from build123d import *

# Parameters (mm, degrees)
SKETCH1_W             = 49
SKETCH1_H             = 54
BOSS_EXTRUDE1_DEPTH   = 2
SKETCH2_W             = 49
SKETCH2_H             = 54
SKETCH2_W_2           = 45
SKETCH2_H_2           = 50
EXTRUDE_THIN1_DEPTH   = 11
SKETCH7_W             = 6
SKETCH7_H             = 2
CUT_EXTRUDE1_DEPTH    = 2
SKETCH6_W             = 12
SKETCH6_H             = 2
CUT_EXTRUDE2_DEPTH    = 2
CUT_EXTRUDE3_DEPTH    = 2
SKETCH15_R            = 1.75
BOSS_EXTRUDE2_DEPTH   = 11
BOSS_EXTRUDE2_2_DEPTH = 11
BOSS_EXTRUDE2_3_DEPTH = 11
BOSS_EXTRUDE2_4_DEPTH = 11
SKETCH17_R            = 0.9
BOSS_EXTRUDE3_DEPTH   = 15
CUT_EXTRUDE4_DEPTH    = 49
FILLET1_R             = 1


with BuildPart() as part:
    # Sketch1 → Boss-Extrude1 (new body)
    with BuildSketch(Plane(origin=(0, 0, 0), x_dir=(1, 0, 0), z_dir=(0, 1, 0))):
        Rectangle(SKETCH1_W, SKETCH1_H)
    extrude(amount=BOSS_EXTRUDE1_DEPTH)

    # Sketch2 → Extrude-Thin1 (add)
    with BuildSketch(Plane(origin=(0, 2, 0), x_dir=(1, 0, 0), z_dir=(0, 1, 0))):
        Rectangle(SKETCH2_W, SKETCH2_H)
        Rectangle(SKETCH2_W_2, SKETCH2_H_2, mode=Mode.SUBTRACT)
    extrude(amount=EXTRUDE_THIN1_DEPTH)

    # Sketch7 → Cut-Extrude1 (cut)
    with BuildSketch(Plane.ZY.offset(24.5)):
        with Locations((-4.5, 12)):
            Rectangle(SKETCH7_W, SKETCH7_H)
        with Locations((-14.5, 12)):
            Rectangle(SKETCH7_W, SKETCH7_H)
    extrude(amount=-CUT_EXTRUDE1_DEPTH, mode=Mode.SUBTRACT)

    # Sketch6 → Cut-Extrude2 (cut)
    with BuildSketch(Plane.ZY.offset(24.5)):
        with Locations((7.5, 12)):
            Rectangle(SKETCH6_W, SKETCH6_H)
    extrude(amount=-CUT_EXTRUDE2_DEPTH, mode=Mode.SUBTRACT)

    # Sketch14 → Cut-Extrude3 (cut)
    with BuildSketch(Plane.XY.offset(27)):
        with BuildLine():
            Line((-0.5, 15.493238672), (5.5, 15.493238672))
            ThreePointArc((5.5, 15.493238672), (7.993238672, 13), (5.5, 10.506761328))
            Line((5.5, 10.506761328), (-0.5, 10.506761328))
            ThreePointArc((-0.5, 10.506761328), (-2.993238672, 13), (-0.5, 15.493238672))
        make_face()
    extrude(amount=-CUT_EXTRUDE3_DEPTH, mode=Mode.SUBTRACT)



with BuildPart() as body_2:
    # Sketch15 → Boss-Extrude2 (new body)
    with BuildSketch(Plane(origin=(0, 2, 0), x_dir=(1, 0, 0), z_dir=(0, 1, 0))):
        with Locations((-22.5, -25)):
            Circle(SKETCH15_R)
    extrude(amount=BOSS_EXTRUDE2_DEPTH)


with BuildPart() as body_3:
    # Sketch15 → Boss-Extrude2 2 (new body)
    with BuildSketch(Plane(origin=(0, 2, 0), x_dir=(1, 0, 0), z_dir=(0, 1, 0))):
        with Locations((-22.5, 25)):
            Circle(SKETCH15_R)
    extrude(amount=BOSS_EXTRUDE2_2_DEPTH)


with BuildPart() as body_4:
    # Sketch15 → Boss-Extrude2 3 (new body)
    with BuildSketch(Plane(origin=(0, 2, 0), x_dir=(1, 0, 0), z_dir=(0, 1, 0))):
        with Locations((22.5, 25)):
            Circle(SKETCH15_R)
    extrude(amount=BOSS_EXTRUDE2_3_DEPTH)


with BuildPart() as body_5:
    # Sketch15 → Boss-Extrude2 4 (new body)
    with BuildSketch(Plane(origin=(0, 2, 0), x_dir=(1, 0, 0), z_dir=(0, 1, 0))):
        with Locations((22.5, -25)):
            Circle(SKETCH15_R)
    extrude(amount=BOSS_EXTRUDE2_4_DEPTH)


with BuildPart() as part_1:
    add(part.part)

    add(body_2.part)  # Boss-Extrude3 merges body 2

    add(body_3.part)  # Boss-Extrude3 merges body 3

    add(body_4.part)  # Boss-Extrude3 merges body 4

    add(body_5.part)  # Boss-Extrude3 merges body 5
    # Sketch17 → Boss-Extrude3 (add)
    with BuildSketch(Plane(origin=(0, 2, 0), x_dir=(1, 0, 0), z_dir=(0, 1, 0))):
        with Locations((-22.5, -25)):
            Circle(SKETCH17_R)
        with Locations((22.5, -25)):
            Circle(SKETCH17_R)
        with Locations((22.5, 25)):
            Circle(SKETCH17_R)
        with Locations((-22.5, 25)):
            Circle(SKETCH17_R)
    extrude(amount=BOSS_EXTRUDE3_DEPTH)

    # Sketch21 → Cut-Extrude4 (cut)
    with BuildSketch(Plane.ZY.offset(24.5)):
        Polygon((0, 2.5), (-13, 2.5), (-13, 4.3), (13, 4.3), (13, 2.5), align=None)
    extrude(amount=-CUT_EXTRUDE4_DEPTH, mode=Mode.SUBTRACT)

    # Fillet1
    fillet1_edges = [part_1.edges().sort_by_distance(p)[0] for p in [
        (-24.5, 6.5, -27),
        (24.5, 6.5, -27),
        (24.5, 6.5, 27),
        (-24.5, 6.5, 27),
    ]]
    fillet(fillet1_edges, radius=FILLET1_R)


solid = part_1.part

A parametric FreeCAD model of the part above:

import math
import FreeCAD as App
import Part
import Sketcher


def edges_at(feature, points):
    """Names of the edges that pass closest to the given points."""
    edges = feature.Shape.Edges
    near = lambda p: min(range(len(edges)), key=lambda i: edges[i].distToShape(Part.Vertex(*p))[0])
    return sorted({f"Edge{near(p) + 1}" for p in points})

doc = App.newDocument("Part")
params = doc.addObject("Spreadsheet::Sheet", "Params")
for row, (alias, value) in enumerate([
    ("sketch1_width", "49 mm"),
    ("sketch1_height", "54 mm"),
    ("pad1_length", "2 mm"),
    ("sketch2_width", "49 mm"),
    ("sketch2_width2", "45 mm"),
    ("sketch2_height", "54 mm"),
    ("sketch2_height2", "50 mm"),
    ("pad2_length", "11 mm"),
    ("sketch3_width", "2 mm"),
    ("sketch3_height", "6 mm"),
    ("pocket1_length", "2 mm"),
    ("sketch4_width", "2 mm"),
    ("sketch4_height", "12 mm"),
    ("pocket2_length", "2 mm"),
    ("sketch5_width", "6 mm"),
    ("pocket3_length", "2 mm"),
    ("sketch6_diameter", "3.5 mm"),
    ("pad3_length", "11 mm"),
    ("sketch7_diameter", "3.5 mm"),
    ("pad4_length", "11 mm"),
    ("sketch8_diameter", "3.5 mm"),
    ("pad5_length", "11 mm"),
    ("sketch9_diameter", "3.5 mm"),
    ("pad6_length", "11 mm"),
    ("sketch10_diameter", "1.8 mm"),
    ("pad7_length", "15 mm"),
    ("sketch11_height", "26 mm"),
    ("sketch11_width", "1.8 mm"),
    ("pocket4_length", "49 mm"),
    ("fillet_radius", "1 mm"),
], start=1):
    params.set(f"A{row}", alias)
    params.set(f"B{row}", "=" + value)
    params.setAlias(f"B{row}", alias)

body = doc.addObject("PartDesign::Body", "Body")

# Sketch on XZ plane
sketch1 = body.newObject("Sketcher::SketchObject", "Sketch")
sketch1.AttachmentSupport = (doc.getObject("XZ_Plane"), [""])
sketch1.MapMode = "FlatFace"
sketch1.addGeometry(Part.LineSegment(App.Vector(-24, -27, 0), App.Vector(-24, 27, 0)), False)
sketch1.addGeometry(Part.LineSegment(App.Vector(-24, 27, 0), App.Vector(24, 27, 0)), False)
sketch1.addGeometry(Part.LineSegment(App.Vector(24, 27, 0), App.Vector(24, -27, 0)), False)
sketch1.addGeometry(Part.LineSegment(App.Vector(24, -27, 0), App.Vector(-24, -27, 0)), False)
sketch1.addConstraint(Sketcher.Constraint("Coincident", 0, 2, 1, 1))
sketch1.addConstraint(Sketcher.Constraint("Coincident", 1, 2, 2, 1))
sketch1.addConstraint(Sketcher.Constraint("Coincident", 2, 2, 3, 1))
sketch1.addConstraint(Sketcher.Constraint("Coincident", 3, 2, 0, 1))
sketch1.addConstraint(Sketcher.Constraint("Vertical", 0))
sketch1.addConstraint(Sketcher.Constraint("Horizontal", 1))
sketch1.addConstraint(Sketcher.Constraint("Vertical", 2))
sketch1.addConstraint(Sketcher.Constraint("Horizontal", 3))
sketch1.addConstraint(Sketcher.Constraint("Symmetric", 0, 2, 2, 2, -1, 1))
sketch1.addConstraint(Sketcher.Constraint("DistanceX", 1, 1, 1, 2, 49.0))
sketch1.addConstraint(Sketcher.Constraint("DistanceY", 0, 1, 0, 2, 54.0))
sketch1.setExpression("Constraints[9]", "Params.sketch1_width")
sketch1.setExpression("Constraints[10]", "Params.sketch1_height")
pad1 = body.newObject("PartDesign::Pad", "Pad")
pad1.Profile = sketch1
pad1.setExpression("Length", "Params.pad1_length")
pad1.Reversed = True

# Sketch on XZ plane
sketch2 = body.newObject("Sketcher::SketchObject", "Sketch001")
sketch2.AttachmentSupport = (doc.getObject("XZ_Plane"), [""])
sketch2.MapMode = "FlatFace"
sketch2.AttachmentOffset = App.Placement(App.Vector(0, 0, -2), App.Rotation())
sketch2.addGeometry(Part.LineSegment(App.Vector(-24, -27, 0), App.Vector(-24, 27, 0)), False)
sketch2.addGeometry(Part.LineSegment(App.Vector(-24, 27, 0), App.Vector(24, 27, 0)), False)
sketch2.addGeometry(Part.LineSegment(App.Vector(24, 27, 0), App.Vector(24, -27, 0)), False)
sketch2.addGeometry(Part.LineSegment(App.Vector(24, -27, 0), App.Vector(-24, -27, 0)), False)
sketch2.addGeometry(Part.LineSegment(App.Vector(22, 25, 0), App.Vector(-22, 25, 0)), False)
sketch2.addGeometry(Part.LineSegment(App.Vector(-22, 25, 0), App.Vector(-22, -25, 0)), False)
sketch2.addGeometry(Part.LineSegment(App.Vector(-22, -25, 0), App.Vector(22, -25, 0)), False)
sketch2.addGeometry(Part.LineSegment(App.Vector(22, -25, 0), App.Vector(22, 25, 0)), False)
sketch2.addConstraint(Sketcher.Constraint("Coincident", 0, 2, 1, 1))
sketch2.addConstraint(Sketcher.Constraint("Coincident", 1, 2, 2, 1))
sketch2.addConstraint(Sketcher.Constraint("Coincident", 2, 2, 3, 1))
sketch2.addConstraint(Sketcher.Constraint("Coincident", 3, 2, 0, 1))
sketch2.addConstraint(Sketcher.Constraint("Coincident", 4, 2, 5, 1))
sketch2.addConstraint(Sketcher.Constraint("Coincident", 5, 2, 6, 1))
sketch2.addConstraint(Sketcher.Constraint("Coincident", 6, 2, 7, 1))
sketch2.addConstraint(Sketcher.Constraint("Coincident", 7, 2, 4, 1))
sketch2.addConstraint(Sketcher.Constraint("Vertical", 0))
sketch2.addConstraint(Sketcher.Constraint("Horizontal", 1))
sketch2.addConstraint(Sketcher.Constraint("Vertical", 2))
sketch2.addConstraint(Sketcher.Constraint("Horizontal", 3))
sketch2.addConstraint(Sketcher.Constraint("Horizontal", 4))
sketch2.addConstraint(Sketcher.Constraint("Vertical", 5))
sketch2.addConstraint(Sketcher.Constraint("Horizontal", 6))
sketch2.addConstraint(Sketcher.Constraint("Vertical", 7))
sketch2.addConstraint(Sketcher.Constraint("Symmetric", 0, 2, 2, 2, -1, 1))
sketch2.addConstraint(Sketcher.Constraint("Symmetric", 4, 2, 6, 2, -1, 1))
sketch2.addConstraint(Sketcher.Constraint("DistanceX", 1, 1, 1, 2, 49.0))
sketch2.addConstraint(Sketcher.Constraint("DistanceX", 4, 2, 4, 1, 45.0))
sketch2.addConstraint(Sketcher.Constraint("DistanceY", 0, 1, 0, 2, 54.0))
sketch2.addConstraint(Sketcher.Constraint("DistanceY", 5, 2, 5, 1, 50.0))
sketch2.setExpression("Constraints[18]", "Params.sketch2_width")
sketch2.setExpression("Constraints[19]", "Params.sketch2_width2")
sketch2.setExpression("Constraints[20]", "Params.sketch2_height")
sketch2.setExpression("Constraints[21]", "Params.sketch2_height2")
pad2 = body.newObject("PartDesign::Pad", "Pad001")
pad2.Profile = sketch2
pad2.setExpression("Length", "Params.pad2_length")
pad2.Reversed = True

# Sketch on YZ plane
sketch3 = body.newObject("Sketcher::SketchObject", "Sketch002")
sketch3.AttachmentSupport = (doc.getObject("YZ_Plane"), [""])
sketch3.MapMode = "FlatFace"
sketch3.AttachmentOffset = App.Placement(App.Vector(0, 0, -24.5), App.Rotation())
sketch3.addGeometry(Part.LineSegment(App.Vector(13, -7.5, 0), App.Vector(11, -7.5, 0)), False)
sketch3.addGeometry(Part.LineSegment(App.Vector(11, -7.5, 0), App.Vector(11, -1.5, 0)), False)
sketch3.addGeometry(Part.LineSegment(App.Vector(11, -1.5, 0), App.Vector(13, -1.5, 0)), False)
sketch3.addGeometry(Part.LineSegment(App.Vector(13, -1.5, 0), App.Vector(13, -7.5, 0)), False)
sketch3.addGeometry(Part.LineSegment(App.Vector(13, -17.5, 0), App.Vector(11, -17.5, 0)), False)
sketch3.addGeometry(Part.LineSegment(App.Vector(11, -17.5, 0), App.Vector(11, -11.5, 0)), False)
sketch3.addGeometry(Part.LineSegment(App.Vector(11, -11.5, 0), App.Vector(13, -11.5, 0)), False)
sketch3.addGeometry(Part.LineSegment(App.Vector(13, -11.5, 0), App.Vector(13, -17.5, 0)), False)
sketch3.addConstraint(Sketcher.Constraint("Coincident", 0, 2, 1, 1))
sketch3.addConstraint(Sketcher.Constraint("Coincident", 1, 2, 2, 1))
sketch3.addConstraint(Sketcher.Constraint("Coincident", 2, 2, 3, 1))
sketch3.addConstraint(Sketcher.Constraint("Coincident", 3, 2, 0, 1))
sketch3.addConstraint(Sketcher.Constraint("Coincident", 4, 2, 5, 1))
sketch3.addConstraint(Sketcher.Constraint("Coincident", 5, 2, 6, 1))
sketch3.addConstraint(Sketcher.Constraint("Coincident", 6, 2, 7, 1))
sketch3.addConstraint(Sketcher.Constraint("Coincident", 7, 2, 4, 1))
sketch3.addConstraint(Sketcher.Constraint("Horizontal", 0))
sketch3.addConstraint(Sketcher.Constraint("Vertical", 1))
sketch3.addConstraint(Sketcher.Constraint("Horizontal", 2))
sketch3.addConstraint(Sketcher.Constraint("Vertical", 3))
sketch3.addConstraint(Sketcher.Constraint("Horizontal", 4))
sketch3.addConstraint(Sketcher.Constraint("Vertical", 5))
sketch3.addConstraint(Sketcher.Constraint("Horizontal", 6))
sketch3.addConstraint(Sketcher.Constraint("Vertical", 7))
sketch3.addConstraint(Sketcher.Constraint("Vertical", 1, 2, 4, 2))
sketch3.addConstraint(Sketcher.Constraint("Vertical", 3, 2, 6, 2))
sketch3.addConstraint(Sketcher.Constraint("Equal", 3, 5))
sketch3.addConstraint(Sketcher.Constraint("DistanceX", 0, 2, 0, 1, 2.0))
sketch3.addConstraint(Sketcher.Constraint("DistanceY", 1, 1, 1, 2, 6.0))
sketch3.addConstraint(Sketcher.Constraint("DistanceX", -1, 1, 0, 2, 11.0))
sketch3.addConstraint(Sketcher.Constraint("DistanceY", 4, 2, 0, 2, 10.0))
sketch3.addConstraint(Sketcher.Constraint("DistanceY", 0, 2, -1, 1, 7.5))
sketch3.setExpression("Constraints[19]", "Params.sketch3_width")
sketch3.setExpression("Constraints[20]", "Params.sketch3_height")
pocket1 = body.newObject("PartDesign::Pocket", "Pocket")
pocket1.Profile = sketch3
pocket1.setExpression("Length", "Params.pocket1_length")
pocket1.Reversed = True

# Sketch on YZ plane
sketch4 = body.newObject("Sketcher::SketchObject", "Sketch003")
sketch4.AttachmentSupport = (doc.getObject("YZ_Plane"), [""])
sketch4.MapMode = "FlatFace"
sketch4.AttachmentOffset = App.Placement(App.Vector(0, 0, -24.5), App.Rotation())
sketch4.addGeometry(Part.LineSegment(App.Vector(13, 1.5, 0), App.Vector(11, 1.5, 0)), False)
sketch4.addGeometry(Part.LineSegment(App.Vector(11, 1.5, 0), App.Vector(11, 13.5, 0)), False)
sketch4.addGeometry(Part.LineSegment(App.Vector(11, 13.5, 0), App.Vector(13, 13.5, 0)), False)
sketch4.addGeometry(Part.LineSegment(App.Vector(13, 13.5, 0), App.Vector(13, 1.5, 0)), False)
sketch4.addConstraint(Sketcher.Constraint("Coincident", 0, 2, 1, 1))
sketch4.addConstraint(Sketcher.Constraint("Coincident", 1, 2, 2, 1))
sketch4.addConstraint(Sketcher.Constraint("Coincident", 2, 2, 3, 1))
sketch4.addConstraint(Sketcher.Constraint("Coincident", 3, 2, 0, 1))
sketch4.addConstraint(Sketcher.Constraint("Horizontal", 0))
sketch4.addConstraint(Sketcher.Constraint("Vertical", 1))
sketch4.addConstraint(Sketcher.Constraint("Horizontal", 2))
sketch4.addConstraint(Sketcher.Constraint("Vertical", 3))
sketch4.addConstraint(Sketcher.Constraint("DistanceX", 0, 2, 0, 1, 2.0))
sketch4.addConstraint(Sketcher.Constraint("DistanceY", 1, 1, 1, 2, 12.0))
sketch4.addConstraint(Sketcher.Constraint("DistanceX", -1, 1, 0, 2, 11.0))
sketch4.addConstraint(Sketcher.Constraint("DistanceY", -1, 1, 0, 2, 1.5))
sketch4.setExpression("Constraints[8]", "Params.sketch4_width")
sketch4.setExpression("Constraints[9]", "Params.sketch4_height")
pocket2 = body.newObject("PartDesign::Pocket", "Pocket001")
pocket2.Profile = sketch4
pocket2.setExpression("Length", "Params.pocket2_length")
pocket2.Reversed = True

# Sketch on XY plane
sketch5 = body.newObject("Sketcher::SketchObject", "Sketch004")
sketch5.AttachmentSupport = (doc.getObject("XY_Plane"), [""])
sketch5.MapMode = "FlatFace"
sketch5.AttachmentOffset = App.Placement(App.Vector(0, 0, 27), App.Rotation())
sketch5.addGeometry(Part.LineSegment(App.Vector(5.5, 15.5, 0), App.Vector(-0.5, 15.5, 0)), False)
sketch5.addGeometry(Part.ArcOfCircle(Part.Circle(App.Vector(-0.5, 13, 0), App.Vector(0, 0, 1), 2.5), math.radians(90), math.radians(270)), False)
sketch5.addGeometry(Part.LineSegment(App.Vector(-0.5, 10.5, 0), App.Vector(5.5, 10.5, 0)), False)
sketch5.addGeometry(Part.ArcOfCircle(Part.Circle(App.Vector(5.5, 13, 0), App.Vector(0, 0, 1), 2.5), math.radians(-90), math.radians(90)), False)
sketch5.addConstraint(Sketcher.Constraint("Tangent", 0, 2, 1, 1))
sketch5.addConstraint(Sketcher.Constraint("Tangent", 1, 2, 2, 1))
sketch5.addConstraint(Sketcher.Constraint("Tangent", 2, 2, 3, 1))
sketch5.addConstraint(Sketcher.Constraint("Tangent", 3, 2, 0, 1))
sketch5.addConstraint(Sketcher.Constraint("Horizontal", 0))
sketch5.addConstraint(Sketcher.Constraint("Horizontal", 2))
sketch5.addConstraint(Sketcher.Constraint("DistanceX", 0, 2, 0, 1, 6.0))
sketch5.addConstraint(Sketcher.Constraint("DistanceY", -1, 1, 1, 3, 13.0))
sketch5.addConstraint(Sketcher.Constraint("DistanceX", 1, 3, -1, 1, 0.5))
sketch5.addConstraint(Sketcher.Constraint("Radius", 1, 2.493239))
sketch5.setExpression("Constraints[6]", "Params.sketch5_width")
pocket3 = body.newObject("PartDesign::Pocket", "Pocket002")
pocket3.Profile = sketch5
pocket3.setExpression("Length", "Params.pocket3_length")
body2 = doc.addObject("PartDesign::Body", "Body001")

# Sketch on XZ plane
sketch6 = body2.newObject("Sketcher::SketchObject", "Sketch005")
sketch6.AttachmentSupport = (doc.getObject("XZ_Plane001"), [""])
sketch6.MapMode = "FlatFace"
sketch6.AttachmentOffset = App.Placement(App.Vector(0, 0, -2), App.Rotation())
sketch6.addGeometry(Part.Circle(App.Vector(-22.5, 25, 0), App.Vector(0, 0, 1), 1.8), False)
sketch6.addConstraint(Sketcher.Constraint("Diameter", 0, 3.5))
sketch6.addConstraint(Sketcher.Constraint("DistanceY", -1, 1, 0, 3, 25.0))
sketch6.addConstraint(Sketcher.Constraint("DistanceX", 0, 3, -1, 1, 22.5))
sketch6.setExpression("Constraints[0]", "Params.sketch6_diameter")
pad3 = body2.newObject("PartDesign::Pad", "Pad002")
pad3.Profile = sketch6
pad3.setExpression("Length", "Params.pad3_length")
pad3.Reversed = True
body3 = doc.addObject("PartDesign::Body", "Body002")

# Sketch on XZ plane
sketch7 = body3.newObject("Sketcher::SketchObject", "Sketch006")
sketch7.AttachmentSupport = (doc.getObject("XZ_Plane002"), [""])
sketch7.MapMode = "FlatFace"
sketch7.AttachmentOffset = App.Placement(App.Vector(0, 0, -2), App.Rotation())
sketch7.addGeometry(Part.Circle(App.Vector(-22.5, -25, 0), App.Vector(0, 0, 1), 1.8), False)
sketch7.addConstraint(Sketcher.Constraint("Diameter", 0, 3.5))
sketch7.addConstraint(Sketcher.Constraint("DistanceY", 0, 3, -1, 1, 25.0))
sketch7.addConstraint(Sketcher.Constraint("DistanceX", 0, 3, -1, 1, 22.5))
sketch7.setExpression("Constraints[0]", "Params.sketch7_diameter")
pad4 = body3.newObject("PartDesign::Pad", "Pad003")
pad4.Profile = sketch7
pad4.setExpression("Length", "Params.pad4_length")
pad4.Reversed = True
body4 = doc.addObject("PartDesign::Body", "Body003")

# Sketch on XZ plane
sketch8 = body4.newObject("Sketcher::SketchObject", "Sketch007")
sketch8.AttachmentSupport = (doc.getObject("XZ_Plane003"), [""])
sketch8.MapMode = "FlatFace"
sketch8.AttachmentOffset = App.Placement(App.Vector(0, 0, -2), App.Rotation())
sketch8.addGeometry(Part.Circle(App.Vector(22.5, -25, 0), App.Vector(0, 0, 1), 1.8), False)
sketch8.addConstraint(Sketcher.Constraint("Diameter", 0, 3.5))
sketch8.addConstraint(Sketcher.Constraint("DistanceY", 0, 3, -1, 1, 25.0))
sketch8.addConstraint(Sketcher.Constraint("DistanceX", -1, 1, 0, 3, 22.5))
sketch8.setExpression("Constraints[0]", "Params.sketch8_diameter")
pad5 = body4.newObject("PartDesign::Pad", "Pad004")
pad5.Profile = sketch8
pad5.setExpression("Length", "Params.pad5_length")
pad5.Reversed = True
body5 = doc.addObject("PartDesign::Body", "Body004")

# Sketch on XZ plane
sketch9 = body5.newObject("Sketcher::SketchObject", "Sketch008")
sketch9.AttachmentSupport = (doc.getObject("XZ_Plane004"), [""])
sketch9.MapMode = "FlatFace"
sketch9.AttachmentOffset = App.Placement(App.Vector(0, 0, -2), App.Rotation())
sketch9.addGeometry(Part.Circle(App.Vector(22.5, 25, 0), App.Vector(0, 0, 1), 1.8), False)
sketch9.addConstraint(Sketcher.Constraint("Diameter", 0, 3.5))
sketch9.addConstraint(Sketcher.Constraint("DistanceY", -1, 1, 0, 3, 25.0))
sketch9.addConstraint(Sketcher.Constraint("DistanceX", -1, 1, 0, 3, 22.5))
sketch9.setExpression("Constraints[0]", "Params.sketch9_diameter")
pad6 = body5.newObject("PartDesign::Pad", "Pad005")
pad6.Profile = sketch9
pad6.setExpression("Length", "Params.pad6_length")
pad6.Reversed = True
doc.recompute()

boolean = body.newObject("PartDesign::Boolean", "Boolean")
boolean.Type = "Fuse"
boolean.addObjects([body2])
doc.recompute()

boolean2 = body.newObject("PartDesign::Boolean", "Boolean001")
boolean2.Type = "Fuse"
boolean2.addObjects([body3])
doc.recompute()

boolean3 = body.newObject("PartDesign::Boolean", "Boolean002")
boolean3.Type = "Fuse"
boolean3.addObjects([body4])
doc.recompute()

boolean4 = body.newObject("PartDesign::Boolean", "Boolean003")
boolean4.Type = "Fuse"
boolean4.addObjects([body5])

# Sketch on XZ plane
sketch10 = body.newObject("Sketcher::SketchObject", "Sketch009")
sketch10.AttachmentSupport = (doc.getObject("XZ_Plane"), [""])
sketch10.MapMode = "FlatFace"
sketch10.AttachmentOffset = App.Placement(App.Vector(0, 0, -2), App.Rotation())
sketch10.addGeometry(Part.Circle(App.Vector(-22.5, 25, 0), App.Vector(0, 0, 1), 0.9), False)
sketch10.addGeometry(Part.Circle(App.Vector(22.5, 25, 0), App.Vector(0, 0, 1), 0.9), False)
sketch10.addGeometry(Part.Circle(App.Vector(22.5, -25, 0), App.Vector(0, 0, 1), 0.9), False)
sketch10.addGeometry(Part.Circle(App.Vector(-22.5, -25, 0), App.Vector(0, 0, 1), 0.9), False)
sketch10.addConstraint(Sketcher.Constraint("Equal", 0, 1))
sketch10.addConstraint(Sketcher.Constraint("Equal", 1, 2))
sketch10.addConstraint(Sketcher.Constraint("Equal", 2, 3))
sketch10.addConstraint(Sketcher.Constraint("Symmetric", 0, 3, 2, 3, -1, 1))
sketch10.addConstraint(Sketcher.Constraint("Symmetric", 1, 3, 3, 3, -1, 1))
sketch10.addConstraint(Sketcher.Constraint("Symmetric", 0, 3, 1, 3, -2))
sketch10.addConstraint(Sketcher.Constraint("Diameter", 0, 1.8))
sketch10.addConstraint(Sketcher.Constraint("DistanceY", -1, 1, 0, 3, 25.0))
sketch10.addConstraint(Sketcher.Constraint("DistanceX", 0, 3, 1, 3, 45.0))
sketch10.setExpression("Constraints[6]", "Params.sketch10_diameter")
pad7 = body.newObject("PartDesign::Pad", "Pad006")
pad7.Profile = sketch10
pad7.setExpression("Length", "Params.pad7_length")
pad7.Reversed = True

# Sketch on YZ plane
sketch11 = body.newObject("Sketcher::SketchObject", "Sketch010")
sketch11.AttachmentSupport = (doc.getObject("YZ_Plane"), [""])
sketch11.MapMode = "FlatFace"
sketch11.AttachmentOffset = App.Placement(App.Vector(0, 0, -24.5), App.Rotation())
sketch11.addGeometry(Part.LineSegment(App.Vector(2.5, -13, 0), App.Vector(2.5, 13, 0)), False)
sketch11.addGeometry(Part.LineSegment(App.Vector(2.5, 13, 0), App.Vector(4.3, 13, 0)), False)
sketch11.addGeometry(Part.LineSegment(App.Vector(4.3, 13, 0), App.Vector(4.3, -13, 0)), False)
sketch11.addGeometry(Part.LineSegment(App.Vector(4.3, -13, 0), App.Vector(2.5, -13, 0)), False)
sketch11.addConstraint(Sketcher.Constraint("Coincident", 0, 2, 1, 1))
sketch11.addConstraint(Sketcher.Constraint("Coincident", 1, 2, 2, 1))
sketch11.addConstraint(Sketcher.Constraint("Coincident", 2, 2, 3, 1))
sketch11.addConstraint(Sketcher.Constraint("Coincident", 3, 2, 0, 1))
sketch11.addConstraint(Sketcher.Constraint("Vertical", 0))
sketch11.addConstraint(Sketcher.Constraint("Horizontal", 1))
sketch11.addConstraint(Sketcher.Constraint("Vertical", 2))
sketch11.addConstraint(Sketcher.Constraint("Horizontal", 3))
sketch11.addConstraint(Sketcher.Constraint("DistanceY", 0, 1, 0, 2, 26.0))
sketch11.addConstraint(Sketcher.Constraint("DistanceX", 1, 1, 1, 2, 1.8))
sketch11.addConstraint(Sketcher.Constraint("DistanceY", -1, 1, 0, 2, 13.0))
sketch11.addConstraint(Sketcher.Constraint("DistanceX", -1, 1, 0, 2, 2.5))
sketch11.setExpression("Constraints[8]", "Params.sketch11_height")
sketch11.setExpression("Constraints[9]", "Params.sketch11_width")
pocket4 = body.newObject("PartDesign::Pocket", "Pocket003")
pocket4.Profile = sketch11
pocket4.setExpression("Length", "Params.pocket4_length")
pocket4.Reversed = True
doc.recompute()

fillet = body.newObject("PartDesign::Fillet", "Fillet")
fillet.Base = (pocket4, edges_at(pocket4, [
    (-24.5, 6.5, -27),
    (24.5, 6.5, -27),
    (24.5, 6.5, 27),
    (-24.5, 6.5, 27),
]))
fillet.setExpression("Radius", "Params.fillet_radius")

doc.recompute()
